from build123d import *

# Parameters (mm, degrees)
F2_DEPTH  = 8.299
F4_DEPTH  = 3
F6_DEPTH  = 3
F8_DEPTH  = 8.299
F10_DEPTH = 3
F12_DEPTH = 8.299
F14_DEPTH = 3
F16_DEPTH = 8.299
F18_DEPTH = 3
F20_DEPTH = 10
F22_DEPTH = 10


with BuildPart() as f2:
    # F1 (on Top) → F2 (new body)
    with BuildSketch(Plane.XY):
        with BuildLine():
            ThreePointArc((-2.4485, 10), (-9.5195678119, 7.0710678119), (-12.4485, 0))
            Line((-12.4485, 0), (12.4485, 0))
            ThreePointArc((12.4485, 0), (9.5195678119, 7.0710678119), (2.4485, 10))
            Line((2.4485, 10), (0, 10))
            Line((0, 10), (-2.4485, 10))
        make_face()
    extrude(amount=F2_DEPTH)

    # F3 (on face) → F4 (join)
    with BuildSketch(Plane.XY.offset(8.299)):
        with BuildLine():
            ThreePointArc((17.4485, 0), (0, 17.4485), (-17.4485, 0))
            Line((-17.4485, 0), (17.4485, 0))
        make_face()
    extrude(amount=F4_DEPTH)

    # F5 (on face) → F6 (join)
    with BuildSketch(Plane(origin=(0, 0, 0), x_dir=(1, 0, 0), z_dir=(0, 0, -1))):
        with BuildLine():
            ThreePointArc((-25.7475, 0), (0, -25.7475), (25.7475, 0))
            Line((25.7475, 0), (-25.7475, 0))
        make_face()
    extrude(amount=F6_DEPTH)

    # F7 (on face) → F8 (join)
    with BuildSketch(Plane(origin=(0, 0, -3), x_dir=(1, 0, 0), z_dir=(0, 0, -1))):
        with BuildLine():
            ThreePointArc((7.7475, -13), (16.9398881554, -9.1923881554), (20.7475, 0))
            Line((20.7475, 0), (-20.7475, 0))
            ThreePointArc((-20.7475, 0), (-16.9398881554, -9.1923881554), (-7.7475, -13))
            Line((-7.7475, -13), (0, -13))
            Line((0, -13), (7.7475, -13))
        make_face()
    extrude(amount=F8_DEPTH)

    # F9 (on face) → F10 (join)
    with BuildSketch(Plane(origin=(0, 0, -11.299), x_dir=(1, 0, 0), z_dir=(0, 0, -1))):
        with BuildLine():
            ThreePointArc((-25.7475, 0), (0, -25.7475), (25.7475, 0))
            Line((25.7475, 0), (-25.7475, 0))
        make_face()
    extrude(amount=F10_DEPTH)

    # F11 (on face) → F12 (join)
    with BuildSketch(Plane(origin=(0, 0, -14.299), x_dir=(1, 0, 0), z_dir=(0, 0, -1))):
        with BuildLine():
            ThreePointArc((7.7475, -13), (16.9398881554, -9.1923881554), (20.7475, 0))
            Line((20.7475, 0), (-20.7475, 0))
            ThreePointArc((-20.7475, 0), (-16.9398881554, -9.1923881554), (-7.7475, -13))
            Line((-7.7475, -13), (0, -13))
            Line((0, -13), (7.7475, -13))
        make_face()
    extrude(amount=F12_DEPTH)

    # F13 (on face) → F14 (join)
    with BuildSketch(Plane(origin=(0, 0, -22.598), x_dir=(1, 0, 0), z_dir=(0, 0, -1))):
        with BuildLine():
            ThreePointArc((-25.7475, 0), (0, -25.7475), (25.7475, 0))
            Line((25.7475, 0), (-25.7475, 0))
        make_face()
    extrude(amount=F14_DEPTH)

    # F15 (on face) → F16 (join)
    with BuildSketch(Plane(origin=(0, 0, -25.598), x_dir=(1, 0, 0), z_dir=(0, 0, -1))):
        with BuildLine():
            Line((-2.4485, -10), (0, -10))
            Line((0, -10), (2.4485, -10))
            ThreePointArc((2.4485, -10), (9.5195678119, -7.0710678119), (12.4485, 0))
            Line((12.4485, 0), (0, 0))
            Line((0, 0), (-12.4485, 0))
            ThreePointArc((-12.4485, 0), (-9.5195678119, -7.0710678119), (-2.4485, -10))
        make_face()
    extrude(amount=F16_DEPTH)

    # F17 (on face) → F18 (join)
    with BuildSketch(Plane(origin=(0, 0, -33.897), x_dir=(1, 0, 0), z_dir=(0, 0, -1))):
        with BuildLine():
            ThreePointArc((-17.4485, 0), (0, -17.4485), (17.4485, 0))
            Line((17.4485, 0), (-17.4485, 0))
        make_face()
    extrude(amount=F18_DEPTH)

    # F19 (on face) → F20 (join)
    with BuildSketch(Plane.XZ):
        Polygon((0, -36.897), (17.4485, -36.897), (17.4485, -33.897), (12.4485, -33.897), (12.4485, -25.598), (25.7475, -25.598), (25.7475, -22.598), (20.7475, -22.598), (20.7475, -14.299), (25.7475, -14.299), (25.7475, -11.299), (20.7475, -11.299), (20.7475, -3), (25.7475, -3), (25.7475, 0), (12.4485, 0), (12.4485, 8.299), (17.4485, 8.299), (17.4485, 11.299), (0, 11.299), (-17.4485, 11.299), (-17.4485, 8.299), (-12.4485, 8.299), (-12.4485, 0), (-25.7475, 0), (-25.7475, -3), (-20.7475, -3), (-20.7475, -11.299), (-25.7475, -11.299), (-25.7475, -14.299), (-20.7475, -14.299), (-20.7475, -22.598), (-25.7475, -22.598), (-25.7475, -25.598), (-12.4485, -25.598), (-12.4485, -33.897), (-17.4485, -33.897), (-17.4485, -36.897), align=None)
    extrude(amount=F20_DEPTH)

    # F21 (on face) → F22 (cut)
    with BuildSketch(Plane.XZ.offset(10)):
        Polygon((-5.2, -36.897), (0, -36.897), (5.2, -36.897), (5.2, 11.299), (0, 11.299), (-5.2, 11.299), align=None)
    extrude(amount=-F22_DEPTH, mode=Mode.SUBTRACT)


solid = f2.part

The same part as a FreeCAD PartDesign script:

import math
import FreeCAD as App
import Part
import Sketcher


def add_polygon(sketch, points):
    """Adds a closed chain of lines whose ends are joined by coincident constraints."""
    first, n = sketch.GeometryCount, len(points)
    for a, b in zip(points, points[1:] + points[:1]):
        sketch.addGeometry(Part.LineSegment(App.Vector(*a, 0), App.Vector(*b, 0)), False)
    for i in range(n):
        sketch.addConstraint(Sketcher.Constraint("Coincident", first + i, 2, first + (i + 1) % n, 1))

doc = App.newDocument("Part")
body = doc.addObject("PartDesign::Body", "Body")

sketch1 = body.newObject("Sketcher::SketchObject", "Sketch")
sketch1.AttachmentSupport = (doc.getObject("XY_Plane"), [""])
sketch1.MapMode = "FlatFace"
sketch1.addGeometry([
    Part.ArcOfCircle(Part.Circle(App.Vector(-2.4485, 0, 0), App.Vector(0, 0, 1), 10), math.radians(90), math.radians(180)),
    Part.LineSegment(App.Vector(-12.4485, 0, 0), App.Vector(12.4485, 0, 0)),
    Part.ArcOfCircle(Part.Circle(App.Vector(2.4485, 0, 0), App.Vector(0, 0, 1), 10), math.radians(0), math.radians(90)),
    Part.LineSegment(App.Vector(2.4485, 10, 0), App.Vector(-2.4485, 10, 0)),
], False)
sketch1.addConstraint([
    Sketcher.Constraint("Coincident", 0, 2, 1, 1),
    Sketcher.Constraint("Coincident", 1, 2, 2, 1),
    Sketcher.Constraint("Tangent", 2, 2, 3, 1),
    Sketcher.Constraint("Tangent", 3, 2, 0, 1),
    Sketcher.Constraint("Horizontal", 1),
    Sketcher.Constraint("Horizontal", 3),
    Sketcher.Constraint("Equal", 0, 2),
    Sketcher.Constraint("Symmetric", 0, 3, 2, 3, -1, 1),
    Sketcher.Constraint("PointOnObject", 0, 2, -1),
    Sketcher.Constraint("Radius", 0, 10.0),
    Sketcher.Constraint("DistanceX", 1, 1, 1, 2, 24.897),
])
pad1 = body.newObject("PartDesign::Pad", "Pad")
pad1.Profile = sketch1
pad1.Length = 8.299

sketch2 = body.newObject("Sketcher::SketchObject", "Sketch001")
sketch2.AttachmentSupport = (doc.getObject("XY_Plane"), [""])
sketch2.MapMode = "FlatFace"
sketch2.AttachmentOffset = App.Placement(App.Vector(0, 0, 8.299), App.Rotation())
sketch2.addGeometry([
    Part.ArcOfCircle(Part.Circle(App.Vector(0, 0, 0), App.Vector(0, 0, 1), 17.4485), math.radians(0), math.radians(180)),
    Part.LineSegment(App.Vector(-17.4485, 0, 0), App.Vector(17.4485, 0, 0)),
], False)
sketch2.addConstraint([
    Sketcher.Constraint("Coincident", 0, 1, 1, 2),
    Sketcher.Constraint("Coincident", 1, 1, 0, 2),
    Sketcher.Constraint("Horizontal", 1),
    Sketcher.Constraint("Coincident", 0, 3, -1, 1),
    Sketcher.Constraint("PointOnObject", 0, 1, -1),
    Sketcher.Constraint("Radius", 0, 17.4485),
])
pad2 = body.newObject("PartDesign::Pad", "Pad001")
pad2.Profile = sketch2
pad2.Length = 3

sketch3 = body.newObject("Sketcher::SketchObject", "Sketch002")
sketch3.AttachmentSupport = (doc.getObject("XY_Plane"), [""])
sketch3.MapMode = "FlatFace"
sketch3.addGeometry([
    Part.ArcOfCircle(Part.Circle(App.Vector(0, 0, 0), App.Vector(0, 0, 1), 25.7475), math.radians(0), math.radians(180)),
    Part.LineSegment(App.Vector(25.7475, 0, 0), App.Vector(-25.7475, 0, 0)),
], False)
sketch3.addConstraint([
    Sketcher.Constraint("Coincident", 0, 1, 1, 1),
    Sketcher.Constraint("Coincident", 1, 2, 0, 2),
    Sketcher.Constraint("Horizontal", 1),
    Sketcher.Constraint("Coincident", 0, 3, -1, 1),
    Sketcher.Constraint("PointOnObject", 0, 1, -1),
    Sketcher.Constraint("Radius", 0, 25.7475),
])
pad3 = body.newObject("PartDesign::Pad", "Pad002")
pad3.Profile = sketch3
pad3.Length = 3
pad3.Reversed = True

sketch4 = body.newObject("Sketcher::SketchObject", "Sketch003")
sketch4.AttachmentSupport = (doc.getObject("XY_Plane"), [""])
sketch4.MapMode = "FlatFace"
sketch4.AttachmentOffset = App.Placement(App.Vector(0, 0, -3), App.Rotation())
sketch4.addGeometry([
    Part.ArcOfCircle(Part.Circle(App.Vector(7.7475, 0, 0), App.Vector(0, 0, 1), 13), math.radians(0), math.radians(90)),
    Part.LineSegment(App.Vector(20.7475, 0, 0), App.Vector(-20.7475, 0, 0)),
    Part.ArcOfCircle(Part.Circle(App.Vector(-7.7475, 0, 0), App.Vector(0, 0, 1), 13), math.radians(90), math.radians(180)),
    Part.LineSegment(App.Vector(-7.7475, 13, 0), App.Vector(7.7475, 13, 0)),
], False)
sketch4.addConstraint([
    Sketcher.Constraint("Coincident", 0, 1, 1, 1),
    Sketcher.Constraint("Coincident", 1, 2, 2, 2),
    Sketcher.Constraint("Tangent", 2, 1, 3, 1),
    Sketcher.Constraint("Tangent", 3, 2, 0, 2),
    Sketcher.Constraint("Horizontal", 1),
    Sketcher.Constraint("Horizontal", 3),
    Sketcher.Constraint("Equal", 0, 2),
    Sketcher.Constraint("Symmetric", 0, 3, 2, 3, -1, 1),
    Sketcher.Constraint("PointOnObject", 0, 1, -1),
    Sketcher.Constraint("Radius", 0, 13.0),
    Sketcher.Constraint("DistanceX", 1, 2, 1, 1, 41.495),
])
pad4 = body.newObject("PartDesign::Pad", "Pad003")
pad4.Profile = sketch4
pad4.Length = 8.299
pad4.Reversed = True

sketch5 = body.newObject("Sketcher::SketchObject", "Sketch004")
sketch5.AttachmentSupport = (doc.getObject("XY_Plane"), [""])
sketch5.MapMode = "FlatFace"
sketch5.AttachmentOffset = App.Placement(App.Vector(0, 0, -11.299), App.Rotation())
sketch5.addGeometry([
    Part.ArcOfCircle(Part.Circle(App.Vector(0, 0, 0), App.Vector(0, 0, 1), 25.7475), math.radians(0), math.radians(180)),
    Part.LineSegment(App.Vector(25.7475, 0, 0), App.Vector(-25.7475, 0, 0)),
], False)
sketch5.addConstraint([
    Sketcher.Constraint("Coincident", 0, 1, 1, 1),
    Sketcher.Constraint("Coincident", 1, 2, 0, 2),
    Sketcher.Constraint("Horizontal", 1),
    Sketcher.Constraint("Coincident", 0, 3, -1, 1),
    Sketcher.Constraint("PointOnObject", 0, 1, -1),
    Sketcher.Constraint("Radius", 0, 25.7475),
])
pad5 = body.newObject("PartDesign::Pad", "Pad004")
pad5.Profile = sketch5
pad5.Length = 3
pad5.Reversed = True

sketch6 = body.newObject("Sketcher::SketchObject", "Sketch005")
sketch6.AttachmentSupport = (doc.getObject("XY_Plane"), [""])
sketch6.MapMode = "FlatFace"
sketch6.AttachmentOffset = App.Placement(App.Vector(0, 0, -14.299), App.Rotation())
sketch6.addGeometry([
    Part.ArcOfCircle(Part.Circle(App.Vector(7.7475, 0, 0), App.Vector(0, 0, 1), 13), math.radians(0), math.radians(90)),
    Part.LineSegment(App.Vector(20.7475, 0, 0), App.Vector(-20.7475, 0, 0)),
    Part.ArcOfCircle(Part.Circle(App.Vector(-7.7475, 0, 0), App.Vector(0, 0, 1), 13), math.radians(90), math.radians(180)),
    Part.LineSegment(App.Vector(-7.7475, 13, 0), App.Vector(7.7475, 13, 0)),
], False)
sketch6.addConstraint([
    Sketcher.Constraint("Coincident", 0, 1, 1, 1),
    Sketcher.Constraint("Coincident", 1, 2, 2, 2),
    Sketcher.Constraint("Tangent", 2, 1, 3, 1),
    Sketcher.Constraint("Tangent", 3, 2, 0, 2),
    Sketcher.Constraint("Horizontal", 1),
    Sketcher.Constraint("Horizontal", 3),
    Sketcher.Constraint("Equal", 0, 2),
    Sketcher.Constraint("Symmetric", 0, 3, 2, 3, -1, 1),
    Sketcher.Constraint("PointOnObject", 0, 1, -1),
    Sketcher.Constraint("Radius", 0, 13.0),
    Sketcher.Constraint("DistanceX", 1, 2, 1, 1, 41.495),
])
pad6 = body.newObject("PartDesign::Pad", "Pad005")
pad6.Profile = sketch6
pad6.Length = 8.299
pad6.Reversed = True

sketch7 = body.newObject("Sketcher::SketchObject", "Sketch006")
sketch7.AttachmentSupport = (doc.getObject("XY_Plane"), [""])
sketch7.MapMode = "FlatFace"
sketch7.AttachmentOffset = App.Placement(App.Vector(0, 0, -22.598), App.Rotation())
sketch7.addGeometry([
    Part.ArcOfCircle(Part.Circle(App.Vector(0, 0, 0), App.Vector(0, 0, 1), 25.7475), math.radians(0), math.radians(180)),
    Part.LineSegment(App.Vector(25.7475, 0, 0), App.Vector(-25.7475, 0, 0)),
], False)
sketch7.addConstraint([
    Sketcher.Constraint("Coincident", 0, 1, 1, 1),
    Sketcher.Constraint("Coincident", 1, 2, 0, 2),
    Sketcher.Constraint("Horizontal", 1),
    Sketcher.Constraint("Coincident", 0, 3, -1, 1),
    Sketcher.Constraint("PointOnObject", 0, 1, -1),
    Sketcher.Constraint("Radius", 0, 25.7475),
])
pad7 = body.newObject("PartDesign::Pad", "Pad006")
pad7.Profile = sketch7
pad7.Length = 3
pad7.Reversed = True

sketch8 = body.newObject("Sketcher::SketchObject", "Sketch007")
sketch8.AttachmentSupport = (doc.getObject("XY_Plane"), [""])
sketch8.MapMode = "FlatFace"
sketch8.AttachmentOffset = App.Placement(App.Vector(0, 0, -25.598), App.Rotation())
sketch8.addGeometry([
    Part.LineSegment(App.Vector(-2.4485, 10, 0), App.Vector(2.4485, 10, 0)),
    Part.ArcOfCircle(Part.Circle(App.Vector(2.4485, 0, 0), App.Vector(0, 0, 1), 10), math.radians(0), math.radians(90)),
    Part.LineSegment(App.Vector(12.4485, 0, 0), App.Vector(-12.4485, 0, 0)),
    Part.ArcOfCircle(Part.Circle(App.Vector(-2.4485, 0, 0), App.Vector(0, 0, 1), 10), math.radians(90), math.radians(180)),
], False)
sketch8.addConstraint([
    Sketcher.Constraint("Tangent", 0, 2, 1, 2),
    Sketcher.Constraint("Coincident", 1, 1, 2, 1),
    Sketcher.Constraint("Coincident", 2, 2, 3, 2),
    Sketcher.Constraint("Tangent", 3, 1, 0, 1),
    Sketcher.Constraint("Horizontal", 0),
    Sketcher.Constraint("Horizontal", 2),
    Sketcher.Constraint("Equal", 1, 3),
    Sketcher.Constraint("Symmetric", 1, 3, 3, 3, -1, 1),
    Sketcher.Constraint("PointOnObject", 1, 1, -1),
    Sketcher.Constraint("Radius", 1, 10.0),
    Sketcher.Constraint("DistanceX", 0, 1, 0, 2, 4.897),
])
pad8 = body.newObject("PartDesign::Pad", "Pad007")
pad8.Profile = sketch8
pad8.Length = 8.299
pad8.Reversed = True

sketch9 = body.newObject("Sketcher::SketchObject", "Sketch008")
sketch9.AttachmentSupport = (doc.getObject("XY_Plane"), [""])
sketch9.MapMode = "FlatFace"
sketch9.AttachmentOffset = App.Placement(App.Vector(0, 0, -33.897), App.Rotation())
sketch9.addGeometry([
    Part.ArcOfCircle(Part.Circle(App.Vector(0, 0, 0), App.Vector(0, 0, 1), 17.4485), math.radians(0), math.radians(180)),
    Part.LineSegment(App.Vector(17.4485, 0, 0), App.Vector(-17.4485, 0, 0)),
], False)
sketch9.addConstraint([
    Sketcher.Constraint("Coincident", 0, 1, 1, 1),
    Sketcher.Constraint("Coincident", 1, 2, 0, 2),
    Sketcher.Constraint("Horizontal", 1),
    Sketcher.Constraint("Coincident", 0, 3, -1, 1),
    Sketcher.Constraint("PointOnObject", 0, 1, -1),
    Sketcher.Constraint("Radius", 0, 17.4485),
])
pad9 = body.newObject("PartDesign::Pad", "Pad008")
pad9.Profile = sketch9
pad9.Length = 3
pad9.Reversed = True

sketch10 = body.newObject("Sketcher::SketchObject", "Sketch009")
sketch10.AttachmentSupport = (doc.getObject("XZ_Plane"), [""])
sketch10.MapMode = "FlatFace"
add_polygon(sketch10, [(17.4485, -36.897), (17.4485, -33.897), (12.4485, -33.897), (12.4485, -25.598), (25.7475, -25.598), (25.7475, -22.598), (20.7475, -22.598), (20.7475, -14.299), (25.7475, -14.299), (25.7475, -11.299), (20.7475, -11.299), (20.7475, -3), (25.7475, -3), (25.7475, 0), (12.4485, 0), (12.4485, 8.299), (17.4485, 8.299), (17.4485, 11.299), (-17.4485, 11.299), (-17.4485, 8.299), (-12.4485, 8.299), (-12.4485, 0), (-25.7475, 0), (-25.7475, -3), (-20.7475, -3), (-20.7475, -11.299), (-25.7475, -11.299), (-25.7475, -14.299), (-20.7475, -14.299), (-20.7475, -22.598), (-25.7475, -22.598), (-25.7475, -25.598), (-12.4485, -25.598), (-12.4485, -33.897), (-17.4485, -33.897), (-17.4485, -36.897)])
sketch10.addConstraint([
    Sketcher.Constraint("Vertical", 0),
    Sketcher.Constraint("Horizontal", 1),
    Sketcher.Constraint("Vertical", 2),
    Sketcher.Constraint("Horizontal", 3),
    Sketcher.Constraint("Vertical", 4),
    Sketcher.Constraint("Horizontal", 5),
    Sketcher.Constraint("Vertical", 6),
    Sketcher.Constraint("Horizontal", 7),
    Sketcher.Constraint("Vertical", 8),
    Sketcher.Constraint("Horizontal", 9),
    Sketcher.Constraint("Vertical", 10),
    Sketcher.Constraint("Horizontal", 11),
    Sketcher.Constraint("Vertical", 12),
    Sketcher.Constraint("Horizontal", 13),
    Sketcher.Constraint("Vertical", 14),
    Sketcher.Constraint("Horizontal", 15),
    Sketcher.Constraint("Vertical", 16),
    Sketcher.Constraint("Horizontal", 17),
    Sketcher.Constraint("Vertical", 18),
    Sketcher.Constraint("Horizontal", 19),
    Sketcher.Constraint("Vertical", 20),
    Sketcher.Constraint("Horizontal", 21),
    Sketcher.Constraint("Vertical", 22),
    Sketcher.Constraint("Horizontal", 23),
    Sketcher.Constraint("Vertical", 24),
    Sketcher.Constraint("Horizontal", 25),
    Sketcher.Constraint("Vertical", 26),
    Sketcher.Constraint("Horizontal", 27),
    Sketcher.Constraint("Vertical", 28),
    Sketcher.Constraint("Horizontal", 29),
    Sketcher.Constraint("Vertical", 30),
    Sketcher.Constraint("Horizontal", 31),
    Sketcher.Constraint("Vertical", 32),
    Sketcher.Constraint("Horizontal", 33),
    Sketcher.Constraint("Vertical", 34),
    Sketcher.Constraint("Horizontal", 35),
    Sketcher.Constraint("Symmetric", 13, 2, 20, 2, -1, 1),
    Sketcher.Constraint("Symmetric", 15, 2, 18, 2, -2),
    Sketcher.Constraint("Symmetric", 12, 2, 21, 2, -2),
    Sketcher.Constraint("Symmetric", 10, 2, 23, 2, -2),
    Sketcher.Constraint("Symmetric", 8, 2, 25, 2, -2),
    Sketcher.Constraint("Symmetric", 6, 2, 27, 2, -2),
    Sketcher.Constraint("Symmetric", 4, 2, 29, 2, -2),
    Sketcher.Constraint("Symmetric", 2, 2, 31, 2, -2),
    Sketcher.Constraint("Symmetric", 0, 2, 33, 2, -2),
    Sketcher.Constraint("Vertical", 4, 2, 7, 2),
    Sketcher.Constraint("Vertical", 6, 2, 9, 2),
    Sketcher.Constraint("Vertical", 8, 2, 11, 2),
    Sketcher.Constraint("Vertical", 2, 2, 13, 2),
    Sketcher.Constraint("Vertical", 0, 2, 15, 2),
    Sketcher.Constraint("Equal", 1, 5),
    Sketcher.Constraint("Equal", 0, 4),
    Sketcher.Constraint("Equal", 2, 6),
    Sketcher.Constraint("Equal", 4, 8),
    Sketcher.Constraint("Equal", 6, 10),
    Sketcher.Constraint("Equal", 8, 12),
    Sketcher.Constraint("Equal", 10, 14),
    Sketcher.Constraint("Equal", 12, 16),
    Sketcher.Constraint("DistanceX", 1, 2, 1, 1, 5.0),
    Sketcher.Constraint("DistanceY", 0, 1, 0, 2, 3.0),
    Sketcher.Constraint("DistanceX", 3, 1, 3, 2, 13.299),
    Sketcher.Constraint("DistanceX", 17, 2, 17, 1, 34.897),
    Sketcher.Constraint("DistanceY", 2, 1, 2, 2, 8.299),
])
pad10 = body.newObject("PartDesign::Pad", "Pad009")
pad10.Profile = sketch10
pad10.Length = 10

sketch11 = body.newObject("Sketcher::SketchObject", "Sketch010")
sketch11.AttachmentSupport = (doc.getObject("XZ_Plane"), [""])
sketch11.MapMode = "FlatFace"
sketch11.AttachmentOffset = App.Placement(App.Vector(0, 0, 10), App.Rotation())
add_polygon(sketch11, [(-5.2, -36.897), (5.2, -36.897), (5.2, 11.299), (-5.2, 11.299)])
sketch11.addConstraint([
    Sketcher.Constraint("Horizontal", 0),
    Sketcher.Constraint("Vertical", 1),
    Sketcher.Constraint("Horizontal", 2),
    Sketcher.Constraint("Vertical", 3),
    Sketcher.Constraint("DistanceX", 0, 1, 0, 2, 10.4),
    Sketcher.Constraint("DistanceX", -1, 1, 0, 2, 5.2),
    Sketcher.Constraint("DistanceY", 1, 1, 1, 2, 48.196),
    Sketcher.Constraint("DistanceY", 0, 2, -1, 1, 36.897),
])
pocket1 = body.newObject("PartDesign::Pocket", "Pocket")
pocket1.Profile = sketch11
pocket1.Length = 10

doc.recompute()
